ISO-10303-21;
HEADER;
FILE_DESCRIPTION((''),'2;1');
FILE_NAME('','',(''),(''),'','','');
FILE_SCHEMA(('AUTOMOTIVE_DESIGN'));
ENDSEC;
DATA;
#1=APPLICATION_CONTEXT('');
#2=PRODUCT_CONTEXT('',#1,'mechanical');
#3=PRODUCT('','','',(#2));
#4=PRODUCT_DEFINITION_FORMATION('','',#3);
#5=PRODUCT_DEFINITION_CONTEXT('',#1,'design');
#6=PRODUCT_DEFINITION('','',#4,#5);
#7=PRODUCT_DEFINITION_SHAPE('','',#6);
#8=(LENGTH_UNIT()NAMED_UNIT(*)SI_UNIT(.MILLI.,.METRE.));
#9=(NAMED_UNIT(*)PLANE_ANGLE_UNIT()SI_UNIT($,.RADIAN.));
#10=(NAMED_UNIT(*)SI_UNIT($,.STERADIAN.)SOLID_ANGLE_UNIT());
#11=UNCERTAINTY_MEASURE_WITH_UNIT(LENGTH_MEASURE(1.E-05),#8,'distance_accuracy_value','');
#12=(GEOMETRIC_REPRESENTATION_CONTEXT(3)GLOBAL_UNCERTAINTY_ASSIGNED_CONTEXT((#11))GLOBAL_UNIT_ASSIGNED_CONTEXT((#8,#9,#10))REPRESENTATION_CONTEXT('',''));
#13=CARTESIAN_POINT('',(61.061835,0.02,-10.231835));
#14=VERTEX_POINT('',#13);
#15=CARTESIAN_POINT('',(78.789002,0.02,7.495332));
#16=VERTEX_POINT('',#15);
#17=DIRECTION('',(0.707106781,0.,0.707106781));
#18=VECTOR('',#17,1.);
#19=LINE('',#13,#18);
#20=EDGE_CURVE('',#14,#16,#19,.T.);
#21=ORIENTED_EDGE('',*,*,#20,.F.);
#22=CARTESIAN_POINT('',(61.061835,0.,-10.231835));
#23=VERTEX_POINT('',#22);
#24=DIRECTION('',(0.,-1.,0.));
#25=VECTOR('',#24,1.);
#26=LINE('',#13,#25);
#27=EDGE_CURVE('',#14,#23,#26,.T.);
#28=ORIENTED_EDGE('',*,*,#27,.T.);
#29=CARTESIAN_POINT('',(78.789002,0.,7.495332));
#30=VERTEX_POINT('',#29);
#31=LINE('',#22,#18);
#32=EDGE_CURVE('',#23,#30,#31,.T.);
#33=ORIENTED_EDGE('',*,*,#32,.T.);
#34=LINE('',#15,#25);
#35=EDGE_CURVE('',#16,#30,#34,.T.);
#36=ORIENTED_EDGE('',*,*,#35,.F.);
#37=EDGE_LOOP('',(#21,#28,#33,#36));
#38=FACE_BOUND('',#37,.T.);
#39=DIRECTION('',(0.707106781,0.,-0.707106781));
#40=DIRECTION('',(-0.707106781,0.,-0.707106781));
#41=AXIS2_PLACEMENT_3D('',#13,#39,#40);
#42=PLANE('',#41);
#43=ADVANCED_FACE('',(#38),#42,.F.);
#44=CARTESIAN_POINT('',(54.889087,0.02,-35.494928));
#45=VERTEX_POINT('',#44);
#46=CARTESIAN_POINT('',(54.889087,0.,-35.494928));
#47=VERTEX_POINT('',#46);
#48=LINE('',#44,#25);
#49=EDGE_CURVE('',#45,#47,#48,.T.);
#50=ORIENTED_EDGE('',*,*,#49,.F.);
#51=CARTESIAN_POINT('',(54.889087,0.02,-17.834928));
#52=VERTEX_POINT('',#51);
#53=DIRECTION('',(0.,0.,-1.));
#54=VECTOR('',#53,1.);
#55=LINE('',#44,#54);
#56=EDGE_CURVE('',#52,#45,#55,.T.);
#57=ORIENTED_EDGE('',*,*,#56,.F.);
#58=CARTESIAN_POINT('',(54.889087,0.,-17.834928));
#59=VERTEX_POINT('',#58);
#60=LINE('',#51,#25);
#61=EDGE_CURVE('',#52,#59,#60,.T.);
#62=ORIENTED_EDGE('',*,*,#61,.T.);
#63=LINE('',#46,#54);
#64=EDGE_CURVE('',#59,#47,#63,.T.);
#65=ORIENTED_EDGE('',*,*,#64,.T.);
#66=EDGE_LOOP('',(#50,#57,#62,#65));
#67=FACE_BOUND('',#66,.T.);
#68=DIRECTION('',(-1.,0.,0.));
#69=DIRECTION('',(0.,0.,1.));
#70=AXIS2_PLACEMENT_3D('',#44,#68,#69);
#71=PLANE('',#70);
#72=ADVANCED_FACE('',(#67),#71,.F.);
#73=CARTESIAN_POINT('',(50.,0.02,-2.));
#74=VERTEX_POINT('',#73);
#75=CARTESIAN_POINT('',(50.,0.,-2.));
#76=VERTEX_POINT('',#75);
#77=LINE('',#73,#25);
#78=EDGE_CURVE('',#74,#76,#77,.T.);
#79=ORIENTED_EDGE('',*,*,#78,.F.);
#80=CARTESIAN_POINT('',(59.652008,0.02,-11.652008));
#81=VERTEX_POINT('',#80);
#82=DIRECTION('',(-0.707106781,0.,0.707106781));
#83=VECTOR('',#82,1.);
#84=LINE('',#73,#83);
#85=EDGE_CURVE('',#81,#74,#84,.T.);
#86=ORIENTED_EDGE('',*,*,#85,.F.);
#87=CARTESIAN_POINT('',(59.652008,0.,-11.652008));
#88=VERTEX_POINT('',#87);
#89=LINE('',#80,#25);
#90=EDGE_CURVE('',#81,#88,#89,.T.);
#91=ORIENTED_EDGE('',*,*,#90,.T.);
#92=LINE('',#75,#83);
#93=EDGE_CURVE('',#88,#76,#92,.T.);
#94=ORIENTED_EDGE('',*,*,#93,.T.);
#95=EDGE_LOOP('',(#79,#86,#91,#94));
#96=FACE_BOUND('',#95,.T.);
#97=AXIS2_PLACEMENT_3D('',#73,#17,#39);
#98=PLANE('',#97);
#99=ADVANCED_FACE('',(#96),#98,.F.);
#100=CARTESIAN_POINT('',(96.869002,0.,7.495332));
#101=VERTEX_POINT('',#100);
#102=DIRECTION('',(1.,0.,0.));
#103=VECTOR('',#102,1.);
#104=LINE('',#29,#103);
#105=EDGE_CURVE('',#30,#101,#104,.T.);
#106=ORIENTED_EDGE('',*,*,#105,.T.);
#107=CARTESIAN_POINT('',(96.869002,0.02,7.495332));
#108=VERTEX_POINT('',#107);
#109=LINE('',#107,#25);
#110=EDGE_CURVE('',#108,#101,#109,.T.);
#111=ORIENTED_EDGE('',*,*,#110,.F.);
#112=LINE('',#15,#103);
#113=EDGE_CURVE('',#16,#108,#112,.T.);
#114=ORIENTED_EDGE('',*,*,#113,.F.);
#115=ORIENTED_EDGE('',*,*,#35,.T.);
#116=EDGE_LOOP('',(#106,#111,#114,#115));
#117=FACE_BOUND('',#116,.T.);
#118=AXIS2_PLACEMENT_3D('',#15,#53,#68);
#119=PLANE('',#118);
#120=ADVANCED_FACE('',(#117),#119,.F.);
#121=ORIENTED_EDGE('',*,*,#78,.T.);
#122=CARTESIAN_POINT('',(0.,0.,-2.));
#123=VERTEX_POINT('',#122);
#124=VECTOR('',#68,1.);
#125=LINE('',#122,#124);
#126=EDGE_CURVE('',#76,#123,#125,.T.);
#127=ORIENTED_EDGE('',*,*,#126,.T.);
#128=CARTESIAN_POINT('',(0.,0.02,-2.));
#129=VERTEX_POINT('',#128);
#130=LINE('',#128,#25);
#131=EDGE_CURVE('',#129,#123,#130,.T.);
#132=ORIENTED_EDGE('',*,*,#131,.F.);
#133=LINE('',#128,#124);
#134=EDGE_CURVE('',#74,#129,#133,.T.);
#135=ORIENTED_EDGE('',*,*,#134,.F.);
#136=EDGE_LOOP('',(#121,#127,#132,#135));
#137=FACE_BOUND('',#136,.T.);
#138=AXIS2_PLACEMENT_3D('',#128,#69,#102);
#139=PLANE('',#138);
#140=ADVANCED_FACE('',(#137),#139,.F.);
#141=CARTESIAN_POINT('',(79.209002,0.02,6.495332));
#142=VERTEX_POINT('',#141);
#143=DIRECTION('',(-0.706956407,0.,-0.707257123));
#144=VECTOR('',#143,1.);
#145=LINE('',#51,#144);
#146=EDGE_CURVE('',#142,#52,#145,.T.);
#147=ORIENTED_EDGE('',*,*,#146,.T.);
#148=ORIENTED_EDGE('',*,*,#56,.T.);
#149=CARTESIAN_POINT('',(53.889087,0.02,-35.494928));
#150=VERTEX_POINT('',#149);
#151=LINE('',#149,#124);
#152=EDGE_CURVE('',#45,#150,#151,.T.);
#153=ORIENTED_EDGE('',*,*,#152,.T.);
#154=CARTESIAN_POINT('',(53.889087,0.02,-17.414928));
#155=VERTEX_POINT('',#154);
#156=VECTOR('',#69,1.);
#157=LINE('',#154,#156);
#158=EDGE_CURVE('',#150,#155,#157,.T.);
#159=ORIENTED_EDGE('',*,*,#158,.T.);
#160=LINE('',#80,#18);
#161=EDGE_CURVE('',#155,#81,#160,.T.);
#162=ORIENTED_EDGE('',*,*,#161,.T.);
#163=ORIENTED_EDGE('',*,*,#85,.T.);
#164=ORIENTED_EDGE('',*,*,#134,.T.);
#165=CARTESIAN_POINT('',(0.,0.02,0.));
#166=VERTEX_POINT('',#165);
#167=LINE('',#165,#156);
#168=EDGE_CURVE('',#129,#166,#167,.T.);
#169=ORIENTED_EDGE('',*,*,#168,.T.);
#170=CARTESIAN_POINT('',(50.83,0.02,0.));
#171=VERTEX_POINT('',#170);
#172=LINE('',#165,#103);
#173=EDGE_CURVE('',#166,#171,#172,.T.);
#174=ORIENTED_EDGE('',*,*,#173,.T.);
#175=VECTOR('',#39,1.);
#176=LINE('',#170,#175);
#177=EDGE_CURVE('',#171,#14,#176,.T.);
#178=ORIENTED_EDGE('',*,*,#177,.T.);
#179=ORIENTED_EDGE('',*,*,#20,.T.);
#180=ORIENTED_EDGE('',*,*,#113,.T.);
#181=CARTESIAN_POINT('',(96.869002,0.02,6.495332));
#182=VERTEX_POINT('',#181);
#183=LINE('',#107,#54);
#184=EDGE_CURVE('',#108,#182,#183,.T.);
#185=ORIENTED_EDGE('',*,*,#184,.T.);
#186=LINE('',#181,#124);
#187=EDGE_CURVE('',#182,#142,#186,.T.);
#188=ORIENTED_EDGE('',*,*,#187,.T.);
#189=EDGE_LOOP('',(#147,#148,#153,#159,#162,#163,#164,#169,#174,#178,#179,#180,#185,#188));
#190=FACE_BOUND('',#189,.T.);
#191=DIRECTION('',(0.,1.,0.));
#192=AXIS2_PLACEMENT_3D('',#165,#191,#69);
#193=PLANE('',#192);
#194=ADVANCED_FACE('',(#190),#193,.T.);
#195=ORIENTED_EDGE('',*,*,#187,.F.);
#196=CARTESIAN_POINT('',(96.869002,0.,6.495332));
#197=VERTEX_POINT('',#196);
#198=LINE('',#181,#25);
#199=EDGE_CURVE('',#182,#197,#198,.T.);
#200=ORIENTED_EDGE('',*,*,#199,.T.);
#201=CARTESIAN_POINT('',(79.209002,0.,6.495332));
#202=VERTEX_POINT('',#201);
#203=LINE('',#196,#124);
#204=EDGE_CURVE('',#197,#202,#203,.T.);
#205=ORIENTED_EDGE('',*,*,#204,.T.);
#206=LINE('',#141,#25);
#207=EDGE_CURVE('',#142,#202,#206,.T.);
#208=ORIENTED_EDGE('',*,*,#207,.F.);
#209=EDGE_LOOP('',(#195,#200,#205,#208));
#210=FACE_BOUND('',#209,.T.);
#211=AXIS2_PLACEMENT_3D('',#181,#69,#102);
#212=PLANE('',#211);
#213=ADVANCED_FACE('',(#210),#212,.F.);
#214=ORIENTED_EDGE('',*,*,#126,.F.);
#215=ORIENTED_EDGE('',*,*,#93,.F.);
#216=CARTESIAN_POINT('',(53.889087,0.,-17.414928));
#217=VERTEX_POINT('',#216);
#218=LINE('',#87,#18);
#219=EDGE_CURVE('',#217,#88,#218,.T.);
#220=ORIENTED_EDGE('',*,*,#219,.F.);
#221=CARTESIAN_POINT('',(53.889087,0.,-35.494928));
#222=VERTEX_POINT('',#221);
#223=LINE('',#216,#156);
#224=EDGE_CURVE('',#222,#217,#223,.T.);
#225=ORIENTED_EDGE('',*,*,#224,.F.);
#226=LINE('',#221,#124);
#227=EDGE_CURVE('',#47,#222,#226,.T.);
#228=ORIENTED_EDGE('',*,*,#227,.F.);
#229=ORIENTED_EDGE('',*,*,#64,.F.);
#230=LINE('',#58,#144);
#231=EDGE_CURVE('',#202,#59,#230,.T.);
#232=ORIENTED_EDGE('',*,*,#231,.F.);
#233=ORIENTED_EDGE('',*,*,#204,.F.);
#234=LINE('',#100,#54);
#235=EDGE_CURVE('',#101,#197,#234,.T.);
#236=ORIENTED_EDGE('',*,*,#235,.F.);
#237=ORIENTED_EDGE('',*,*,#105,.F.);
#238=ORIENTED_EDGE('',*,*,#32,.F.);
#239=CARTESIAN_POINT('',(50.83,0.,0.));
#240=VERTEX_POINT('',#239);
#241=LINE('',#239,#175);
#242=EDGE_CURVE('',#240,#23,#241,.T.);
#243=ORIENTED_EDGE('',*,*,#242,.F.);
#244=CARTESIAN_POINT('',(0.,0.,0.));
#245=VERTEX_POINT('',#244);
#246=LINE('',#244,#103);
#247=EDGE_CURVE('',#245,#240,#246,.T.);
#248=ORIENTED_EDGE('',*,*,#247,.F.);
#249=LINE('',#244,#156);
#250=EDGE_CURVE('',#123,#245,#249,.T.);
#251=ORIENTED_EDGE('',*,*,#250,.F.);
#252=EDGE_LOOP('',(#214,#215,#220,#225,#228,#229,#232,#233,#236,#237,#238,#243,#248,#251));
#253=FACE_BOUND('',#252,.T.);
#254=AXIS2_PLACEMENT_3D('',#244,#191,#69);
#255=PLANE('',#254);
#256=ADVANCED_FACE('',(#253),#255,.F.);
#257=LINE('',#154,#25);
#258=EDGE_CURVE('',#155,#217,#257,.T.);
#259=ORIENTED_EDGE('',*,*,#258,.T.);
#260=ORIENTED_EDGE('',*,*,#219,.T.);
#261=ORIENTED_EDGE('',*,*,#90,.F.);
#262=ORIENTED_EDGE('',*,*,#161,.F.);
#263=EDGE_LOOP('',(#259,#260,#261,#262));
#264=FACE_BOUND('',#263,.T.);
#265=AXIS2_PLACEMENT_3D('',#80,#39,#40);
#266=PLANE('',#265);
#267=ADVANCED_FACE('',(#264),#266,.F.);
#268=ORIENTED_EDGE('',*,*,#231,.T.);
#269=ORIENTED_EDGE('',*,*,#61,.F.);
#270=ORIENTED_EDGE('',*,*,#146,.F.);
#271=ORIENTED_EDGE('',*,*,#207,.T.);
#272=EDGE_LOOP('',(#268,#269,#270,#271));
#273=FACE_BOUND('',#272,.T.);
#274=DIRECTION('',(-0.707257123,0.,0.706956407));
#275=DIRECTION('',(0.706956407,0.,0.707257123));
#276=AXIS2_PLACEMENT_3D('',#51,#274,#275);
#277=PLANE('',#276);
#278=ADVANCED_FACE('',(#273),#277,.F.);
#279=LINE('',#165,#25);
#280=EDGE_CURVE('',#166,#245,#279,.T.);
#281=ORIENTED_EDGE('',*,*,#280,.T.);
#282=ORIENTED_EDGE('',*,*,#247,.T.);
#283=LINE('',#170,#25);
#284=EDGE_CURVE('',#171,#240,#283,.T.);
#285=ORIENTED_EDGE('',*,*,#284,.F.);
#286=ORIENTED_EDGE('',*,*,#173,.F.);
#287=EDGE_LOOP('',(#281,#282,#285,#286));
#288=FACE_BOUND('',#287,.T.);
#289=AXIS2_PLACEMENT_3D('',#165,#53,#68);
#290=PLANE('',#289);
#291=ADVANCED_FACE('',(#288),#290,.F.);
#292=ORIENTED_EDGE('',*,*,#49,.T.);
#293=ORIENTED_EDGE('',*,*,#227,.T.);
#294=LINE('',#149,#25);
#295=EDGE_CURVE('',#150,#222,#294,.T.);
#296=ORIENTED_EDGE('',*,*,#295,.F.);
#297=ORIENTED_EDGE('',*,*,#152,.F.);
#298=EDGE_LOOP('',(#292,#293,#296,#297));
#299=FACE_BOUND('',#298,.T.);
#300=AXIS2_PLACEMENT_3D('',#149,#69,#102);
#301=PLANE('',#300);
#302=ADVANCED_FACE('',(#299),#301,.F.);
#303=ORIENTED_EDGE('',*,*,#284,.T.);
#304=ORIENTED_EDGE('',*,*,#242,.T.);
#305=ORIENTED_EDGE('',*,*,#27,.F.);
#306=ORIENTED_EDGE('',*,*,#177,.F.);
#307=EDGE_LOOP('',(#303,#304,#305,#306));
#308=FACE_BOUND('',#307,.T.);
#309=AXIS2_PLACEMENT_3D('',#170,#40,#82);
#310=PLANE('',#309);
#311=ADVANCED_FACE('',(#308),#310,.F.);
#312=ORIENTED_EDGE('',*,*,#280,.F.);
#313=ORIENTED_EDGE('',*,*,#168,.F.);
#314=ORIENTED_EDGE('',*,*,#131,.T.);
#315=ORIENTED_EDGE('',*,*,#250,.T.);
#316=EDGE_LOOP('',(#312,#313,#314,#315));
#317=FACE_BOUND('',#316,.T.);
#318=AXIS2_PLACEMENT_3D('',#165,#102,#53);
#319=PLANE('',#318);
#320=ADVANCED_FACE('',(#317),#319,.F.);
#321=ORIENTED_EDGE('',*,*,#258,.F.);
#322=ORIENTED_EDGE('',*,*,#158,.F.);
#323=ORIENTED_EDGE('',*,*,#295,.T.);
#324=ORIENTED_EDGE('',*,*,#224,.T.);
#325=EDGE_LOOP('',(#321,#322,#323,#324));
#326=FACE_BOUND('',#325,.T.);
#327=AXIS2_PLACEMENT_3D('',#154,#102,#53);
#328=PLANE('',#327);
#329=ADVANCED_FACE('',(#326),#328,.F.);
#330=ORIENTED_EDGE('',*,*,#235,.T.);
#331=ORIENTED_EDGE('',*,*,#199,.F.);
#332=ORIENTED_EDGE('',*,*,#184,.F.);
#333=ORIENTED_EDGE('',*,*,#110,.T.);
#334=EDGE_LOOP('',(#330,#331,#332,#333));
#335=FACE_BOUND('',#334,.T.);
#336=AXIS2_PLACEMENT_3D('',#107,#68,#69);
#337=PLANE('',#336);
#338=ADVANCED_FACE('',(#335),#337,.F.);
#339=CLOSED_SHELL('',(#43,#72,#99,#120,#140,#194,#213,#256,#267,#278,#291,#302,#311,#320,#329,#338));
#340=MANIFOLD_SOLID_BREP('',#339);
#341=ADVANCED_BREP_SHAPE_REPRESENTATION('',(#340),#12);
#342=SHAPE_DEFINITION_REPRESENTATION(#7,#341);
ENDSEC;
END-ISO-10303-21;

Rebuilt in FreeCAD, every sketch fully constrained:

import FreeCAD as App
import Part
import Sketcher
from FreeCAD import Vector
Q = App.Units.Quantity

doc = App.newDocument("Part")
body = doc.addObject("PartDesign::Body", "Body")

# Sketch on XZ plane
sketch1 = doc.addObject("Sketcher::SketchObject", "Sketch")
body.addObject(sketch1)
sketch1.AttachmentSupport = (doc.XZ_Plane, [""])
sketch1.MapMode = "FlatFace"
sketch1.addGeometry(Part.LineSegment(Vector(0, -2, 0), Vector(0, 0, 0)), False)
sketch1.addGeometry(Part.LineSegment(Vector(0, 0, 0), Vector(50.8, 0, 0)), False)
sketch1.addGeometry(Part.LineSegment(Vector(50.8, 0, 0), Vector(61.1, -10.2, 0)), False)
sketch1.addGeometry(Part.LineSegment(Vector(61.1, -10.2, 0), Vector(78.8, 7.5, 0)), False)
sketch1.addGeometry(Part.LineSegment(Vector(78.8, 7.5, 0), Vector(96.9, 7.5, 0)), False)
sketch1.addGeometry(Part.LineSegment(Vector(96.9, 7.5, 0), Vector(96.9, 6.5, 0)), False)
sketch1.addGeometry(Part.LineSegment(Vector(96.9, 6.5, 0), Vector(79.2, 6.5, 0)), False)
sketch1.addGeometry(Part.LineSegment(Vector(79.2, 6.5, 0), Vector(54.9, -17.8, 0)), False)
sketch1.addGeometry(Part.LineSegment(Vector(54.9, -17.8, 0), Vector(54.9, -35.5, 0)), False)
sketch1.addGeometry(Part.LineSegment(Vector(54.9, -35.5, 0), Vector(53.9, -35.5, 0)), False)
sketch1.addGeometry(Part.LineSegment(Vector(53.9, -35.5, 0), Vector(53.9, -17.4, 0)), False)
sketch1.addGeometry(Part.LineSegment(Vector(53.9, -17.4, 0), Vector(59.7, -11.7, 0)), False)
sketch1.addGeometry(Part.LineSegment(Vector(59.7, -11.7, 0), Vector(50, -2, 0)), False)
sketch1.addGeometry(Part.LineSegment(Vector(50, -2, 0), Vector(0, -2, 0)), False)
sketch1.addConstraint(Sketcher.Constraint("Coincident", 0, 2, 1, 1))
sketch1.addConstraint(Sketcher.Constraint("Coincident", 1, 2, 2, 1))
sketch1.addConstraint(Sketcher.Constraint("Coincident", 2, 2, 3, 1))
sketch1.addConstraint(Sketcher.Constraint("Coincident", 3, 2, 4, 1))
sketch1.addConstraint(Sketcher.Constraint("Coincident", 4, 2, 5, 1))
sketch1.addConstraint(Sketcher.Constraint("Coincident", 5, 2, 6, 1))
sketch1.addConstraint(Sketcher.Constraint("Coincident", 6, 2, 7, 1))
sketch1.addConstraint(Sketcher.Constraint("Coincident", 7, 2, 8, 1))
sketch1.addConstraint(Sketcher.Constraint("Coincident", 8, 2, 9, 1))
sketch1.addConstraint(Sketcher.Constraint("Coincident", 9, 2, 10, 1))
sketch1.addConstraint(Sketcher.Constraint("Coincident", 10, 2, 11, 1))
sketch1.addConstraint(Sketcher.Constraint("Coincident", 11, 2, 12, 1))
sketch1.addConstraint(Sketcher.Constraint("Coincident", 12, 2, 13, 1))
sketch1.addConstraint(Sketcher.Constraint("Coincident", 13, 2, 0, 1))
sketch1.addConstraint(Sketcher.Constraint("Vertical", 0))
sketch1.addConstraint(Sketcher.Constraint("Horizontal", 1))
sketch1.addConstraint(Sketcher.Constraint("Horizontal", 4))
sketch1.addConstraint(Sketcher.Constraint("Vertical", 5))
sketch1.addConstraint(Sketcher.Constraint("Horizontal", 6))
sketch1.addConstraint(Sketcher.Constraint("Vertical", 8))
sketch1.addConstraint(Sketcher.Constraint("Horizontal", 9))
sketch1.addConstraint(Sketcher.Constraint("Vertical", 10))
sketch1.addConstraint(Sketcher.Constraint("Horizontal", 13))
sketch1.addConstraint(Sketcher.Constraint("Coincident", 0, 2, -1, 1))
sketch1.addConstraint(Sketcher.Constraint("Perpendicular", 2, 3))
sketch1.addConstraint(Sketcher.Constraint("Parallel", 3, 11))
sketch1.addConstraint(Sketcher.Constraint("Perpendicular", 11, 12))
sketch1.addConstraint(Sketcher.Constraint("Equal", 9, 5))
sketch1.addConstraint(Sketcher.Constraint("Equal", 6, 8))
sketch1.addConstraint(Sketcher.Constraint("Equal", 4, 10))
sketch1.addConstraint(Sketcher.Constraint("DistanceX", 9, 2, 9, 1, 1.0))
sketch1.addConstraint(Sketcher.Constraint("DistanceX", 13, 2, 13, 1, 50.0))
sketch1.addConstraint(Sketcher.Constraint("DistanceY", 0, 1, 0, 2, 2.0))
sketch1.addConstraint(Sketcher.Constraint("Angle", 2, Q("-45 deg")))
sketch1.addConstraint(Sketcher.Constraint("DistanceX", 1, 1, 1, 2, 50.83))
sketch1.addConstraint(Sketcher.Constraint("DistanceX", 4, 1, 4, 2, 18.08))
sketch1.addConstraint(Sketcher.Constraint("DistanceX", 6, 2, 6, 1, 17.66))
sketch1.addConstraint(Sketcher.Constraint("Distance", 2, 14.47))
sketch1.addConstraint(Sketcher.Constraint("Distance", 3, 25.07))
sketch1.addConstraint(Sketcher.Constraint("Distance", 11, 8.15))
sketch1.addConstraint(Sketcher.Constraint("Distance", 12, 13.65))
pad1 = doc.addObject("PartDesign::Pad", "Pad")
body.addObject(pad1)
pad1.Profile = sketch1
pad1.Length = 0.02
pad1.Reversed = True

doc.recompute()
